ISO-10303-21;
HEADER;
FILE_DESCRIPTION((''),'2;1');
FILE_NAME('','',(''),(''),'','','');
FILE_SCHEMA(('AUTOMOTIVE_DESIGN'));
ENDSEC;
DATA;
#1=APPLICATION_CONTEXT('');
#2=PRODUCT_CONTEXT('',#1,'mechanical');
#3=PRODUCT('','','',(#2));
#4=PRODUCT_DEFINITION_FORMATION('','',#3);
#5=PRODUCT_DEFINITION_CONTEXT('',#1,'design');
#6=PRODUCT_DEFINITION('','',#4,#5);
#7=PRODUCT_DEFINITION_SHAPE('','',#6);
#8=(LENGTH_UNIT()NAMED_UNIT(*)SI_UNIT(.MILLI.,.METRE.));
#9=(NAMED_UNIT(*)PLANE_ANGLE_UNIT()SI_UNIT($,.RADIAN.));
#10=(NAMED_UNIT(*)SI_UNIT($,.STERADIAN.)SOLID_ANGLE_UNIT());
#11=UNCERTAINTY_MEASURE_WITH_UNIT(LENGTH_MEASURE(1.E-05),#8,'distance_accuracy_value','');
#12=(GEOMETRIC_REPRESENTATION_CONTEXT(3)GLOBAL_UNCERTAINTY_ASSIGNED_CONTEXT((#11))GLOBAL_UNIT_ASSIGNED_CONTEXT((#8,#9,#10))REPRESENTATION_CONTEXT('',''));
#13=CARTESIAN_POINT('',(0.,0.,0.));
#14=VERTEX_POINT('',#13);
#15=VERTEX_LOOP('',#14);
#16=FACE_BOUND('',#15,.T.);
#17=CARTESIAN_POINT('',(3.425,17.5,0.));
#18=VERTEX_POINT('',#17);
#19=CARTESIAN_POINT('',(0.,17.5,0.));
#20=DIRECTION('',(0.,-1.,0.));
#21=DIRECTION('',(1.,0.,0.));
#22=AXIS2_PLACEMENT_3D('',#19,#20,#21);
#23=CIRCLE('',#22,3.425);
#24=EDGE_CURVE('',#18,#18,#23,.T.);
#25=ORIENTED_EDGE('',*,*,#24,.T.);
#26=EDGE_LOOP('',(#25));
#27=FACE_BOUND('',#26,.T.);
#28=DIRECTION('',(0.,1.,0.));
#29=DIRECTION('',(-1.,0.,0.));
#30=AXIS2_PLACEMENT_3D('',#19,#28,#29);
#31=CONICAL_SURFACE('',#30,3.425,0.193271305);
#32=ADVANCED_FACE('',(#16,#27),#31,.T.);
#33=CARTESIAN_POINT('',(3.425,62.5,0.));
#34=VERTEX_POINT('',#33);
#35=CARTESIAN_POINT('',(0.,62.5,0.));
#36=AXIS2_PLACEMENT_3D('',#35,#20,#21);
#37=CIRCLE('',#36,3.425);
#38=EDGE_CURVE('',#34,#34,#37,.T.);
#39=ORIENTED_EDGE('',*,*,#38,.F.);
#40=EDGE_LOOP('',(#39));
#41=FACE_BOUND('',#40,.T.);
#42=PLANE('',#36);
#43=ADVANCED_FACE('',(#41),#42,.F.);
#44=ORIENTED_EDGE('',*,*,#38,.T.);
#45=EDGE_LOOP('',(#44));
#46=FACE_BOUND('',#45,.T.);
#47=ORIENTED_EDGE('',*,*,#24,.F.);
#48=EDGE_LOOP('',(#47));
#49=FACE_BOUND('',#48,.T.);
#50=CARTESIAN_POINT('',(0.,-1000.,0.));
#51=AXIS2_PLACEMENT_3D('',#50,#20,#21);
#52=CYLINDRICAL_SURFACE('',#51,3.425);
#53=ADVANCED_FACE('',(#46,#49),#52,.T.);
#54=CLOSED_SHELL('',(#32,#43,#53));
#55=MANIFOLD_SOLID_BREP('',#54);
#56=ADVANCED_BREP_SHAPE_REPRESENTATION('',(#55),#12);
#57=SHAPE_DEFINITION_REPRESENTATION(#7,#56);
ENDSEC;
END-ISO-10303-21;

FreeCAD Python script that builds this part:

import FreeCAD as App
import Part
import Sketcher
from FreeCAD import Vector
Q = App.Units.Quantity

doc = App.newDocument("Part")
params = doc.addObject("Spreadsheet::Sheet", "Params")
for row, (alias, value) in enumerate([
    ("sketch1_height", "45 mm"),
    ("sketch1_height2", "62.5 mm"),
    ("revolution_angle", "360 deg"),
], start=1):
    params.set(f"A{row}", alias)
    params.set(f"B{row}", "=" + value)
    params.setAlias(f"B{row}", alias)

body = doc.addObject("PartDesign::Body", "Body")

# Sketch on XY plane
sketch1 = body.newObject("Sketcher::SketchObject", "Sketch")
sketch1.AttachmentSupport = (doc.getObject("XY_Plane"), [""])
sketch1.MapMode = "FlatFace"
sketch1.addGeometry([
    Part.LineSegment(Vector(0, 62.5, 0), Vector(-3.425, 62.5, 0)),
    Part.LineSegment(Vector(-3.425, 62.5, 0), Vector(-3.425, 17.5, 0)),
    Part.LineSegment(Vector(-3.425, 17.5, 0), Vector(0, 0, 0)),
    Part.LineSegment(Vector(0, 0, 0), Vector(0, 62.5, 0)),
], False)
sketch1.addConstraint([
    Sketcher.Constraint("Coincident", 0, 2, 1, 1),
    Sketcher.Constraint("Coincident", 1, 2, 2, 1),
    Sketcher.Constraint("Coincident", 2, 2, 3, 1),
    Sketcher.Constraint("Coincident", 3, 2, 0, 1),
    Sketcher.Constraint("Horizontal", 0),
    Sketcher.Constraint("Vertical", 1),
    Sketcher.Constraint("Vertical", 3),
    Sketcher.Constraint("Coincident", 2, 2, -1, 1),
    Sketcher.Constraint("DistanceY", 1, 2, 1, 1, Q("45 mm")),
    Sketcher.Constraint("DistanceY", 3, 1, 3, 2, Q("62.5 mm")),
    Sketcher.Constraint("DistanceX", 0, 2, 0, 1, Q("3.425 mm")),
])
sketch1.setExpression("Constraints[8]", "Params.sketch1_height")
sketch1.setExpression("Constraints[9]", "Params.sketch1_height2")
revolution = body.newObject("PartDesign::Revolution", "Revolution")
revolution.Profile = sketch1
revolution.ReferenceAxis = (sketch1, ["V_Axis"])
revolution.setExpression("Angle", "Params.revolution_angle")

doc.recompute()
